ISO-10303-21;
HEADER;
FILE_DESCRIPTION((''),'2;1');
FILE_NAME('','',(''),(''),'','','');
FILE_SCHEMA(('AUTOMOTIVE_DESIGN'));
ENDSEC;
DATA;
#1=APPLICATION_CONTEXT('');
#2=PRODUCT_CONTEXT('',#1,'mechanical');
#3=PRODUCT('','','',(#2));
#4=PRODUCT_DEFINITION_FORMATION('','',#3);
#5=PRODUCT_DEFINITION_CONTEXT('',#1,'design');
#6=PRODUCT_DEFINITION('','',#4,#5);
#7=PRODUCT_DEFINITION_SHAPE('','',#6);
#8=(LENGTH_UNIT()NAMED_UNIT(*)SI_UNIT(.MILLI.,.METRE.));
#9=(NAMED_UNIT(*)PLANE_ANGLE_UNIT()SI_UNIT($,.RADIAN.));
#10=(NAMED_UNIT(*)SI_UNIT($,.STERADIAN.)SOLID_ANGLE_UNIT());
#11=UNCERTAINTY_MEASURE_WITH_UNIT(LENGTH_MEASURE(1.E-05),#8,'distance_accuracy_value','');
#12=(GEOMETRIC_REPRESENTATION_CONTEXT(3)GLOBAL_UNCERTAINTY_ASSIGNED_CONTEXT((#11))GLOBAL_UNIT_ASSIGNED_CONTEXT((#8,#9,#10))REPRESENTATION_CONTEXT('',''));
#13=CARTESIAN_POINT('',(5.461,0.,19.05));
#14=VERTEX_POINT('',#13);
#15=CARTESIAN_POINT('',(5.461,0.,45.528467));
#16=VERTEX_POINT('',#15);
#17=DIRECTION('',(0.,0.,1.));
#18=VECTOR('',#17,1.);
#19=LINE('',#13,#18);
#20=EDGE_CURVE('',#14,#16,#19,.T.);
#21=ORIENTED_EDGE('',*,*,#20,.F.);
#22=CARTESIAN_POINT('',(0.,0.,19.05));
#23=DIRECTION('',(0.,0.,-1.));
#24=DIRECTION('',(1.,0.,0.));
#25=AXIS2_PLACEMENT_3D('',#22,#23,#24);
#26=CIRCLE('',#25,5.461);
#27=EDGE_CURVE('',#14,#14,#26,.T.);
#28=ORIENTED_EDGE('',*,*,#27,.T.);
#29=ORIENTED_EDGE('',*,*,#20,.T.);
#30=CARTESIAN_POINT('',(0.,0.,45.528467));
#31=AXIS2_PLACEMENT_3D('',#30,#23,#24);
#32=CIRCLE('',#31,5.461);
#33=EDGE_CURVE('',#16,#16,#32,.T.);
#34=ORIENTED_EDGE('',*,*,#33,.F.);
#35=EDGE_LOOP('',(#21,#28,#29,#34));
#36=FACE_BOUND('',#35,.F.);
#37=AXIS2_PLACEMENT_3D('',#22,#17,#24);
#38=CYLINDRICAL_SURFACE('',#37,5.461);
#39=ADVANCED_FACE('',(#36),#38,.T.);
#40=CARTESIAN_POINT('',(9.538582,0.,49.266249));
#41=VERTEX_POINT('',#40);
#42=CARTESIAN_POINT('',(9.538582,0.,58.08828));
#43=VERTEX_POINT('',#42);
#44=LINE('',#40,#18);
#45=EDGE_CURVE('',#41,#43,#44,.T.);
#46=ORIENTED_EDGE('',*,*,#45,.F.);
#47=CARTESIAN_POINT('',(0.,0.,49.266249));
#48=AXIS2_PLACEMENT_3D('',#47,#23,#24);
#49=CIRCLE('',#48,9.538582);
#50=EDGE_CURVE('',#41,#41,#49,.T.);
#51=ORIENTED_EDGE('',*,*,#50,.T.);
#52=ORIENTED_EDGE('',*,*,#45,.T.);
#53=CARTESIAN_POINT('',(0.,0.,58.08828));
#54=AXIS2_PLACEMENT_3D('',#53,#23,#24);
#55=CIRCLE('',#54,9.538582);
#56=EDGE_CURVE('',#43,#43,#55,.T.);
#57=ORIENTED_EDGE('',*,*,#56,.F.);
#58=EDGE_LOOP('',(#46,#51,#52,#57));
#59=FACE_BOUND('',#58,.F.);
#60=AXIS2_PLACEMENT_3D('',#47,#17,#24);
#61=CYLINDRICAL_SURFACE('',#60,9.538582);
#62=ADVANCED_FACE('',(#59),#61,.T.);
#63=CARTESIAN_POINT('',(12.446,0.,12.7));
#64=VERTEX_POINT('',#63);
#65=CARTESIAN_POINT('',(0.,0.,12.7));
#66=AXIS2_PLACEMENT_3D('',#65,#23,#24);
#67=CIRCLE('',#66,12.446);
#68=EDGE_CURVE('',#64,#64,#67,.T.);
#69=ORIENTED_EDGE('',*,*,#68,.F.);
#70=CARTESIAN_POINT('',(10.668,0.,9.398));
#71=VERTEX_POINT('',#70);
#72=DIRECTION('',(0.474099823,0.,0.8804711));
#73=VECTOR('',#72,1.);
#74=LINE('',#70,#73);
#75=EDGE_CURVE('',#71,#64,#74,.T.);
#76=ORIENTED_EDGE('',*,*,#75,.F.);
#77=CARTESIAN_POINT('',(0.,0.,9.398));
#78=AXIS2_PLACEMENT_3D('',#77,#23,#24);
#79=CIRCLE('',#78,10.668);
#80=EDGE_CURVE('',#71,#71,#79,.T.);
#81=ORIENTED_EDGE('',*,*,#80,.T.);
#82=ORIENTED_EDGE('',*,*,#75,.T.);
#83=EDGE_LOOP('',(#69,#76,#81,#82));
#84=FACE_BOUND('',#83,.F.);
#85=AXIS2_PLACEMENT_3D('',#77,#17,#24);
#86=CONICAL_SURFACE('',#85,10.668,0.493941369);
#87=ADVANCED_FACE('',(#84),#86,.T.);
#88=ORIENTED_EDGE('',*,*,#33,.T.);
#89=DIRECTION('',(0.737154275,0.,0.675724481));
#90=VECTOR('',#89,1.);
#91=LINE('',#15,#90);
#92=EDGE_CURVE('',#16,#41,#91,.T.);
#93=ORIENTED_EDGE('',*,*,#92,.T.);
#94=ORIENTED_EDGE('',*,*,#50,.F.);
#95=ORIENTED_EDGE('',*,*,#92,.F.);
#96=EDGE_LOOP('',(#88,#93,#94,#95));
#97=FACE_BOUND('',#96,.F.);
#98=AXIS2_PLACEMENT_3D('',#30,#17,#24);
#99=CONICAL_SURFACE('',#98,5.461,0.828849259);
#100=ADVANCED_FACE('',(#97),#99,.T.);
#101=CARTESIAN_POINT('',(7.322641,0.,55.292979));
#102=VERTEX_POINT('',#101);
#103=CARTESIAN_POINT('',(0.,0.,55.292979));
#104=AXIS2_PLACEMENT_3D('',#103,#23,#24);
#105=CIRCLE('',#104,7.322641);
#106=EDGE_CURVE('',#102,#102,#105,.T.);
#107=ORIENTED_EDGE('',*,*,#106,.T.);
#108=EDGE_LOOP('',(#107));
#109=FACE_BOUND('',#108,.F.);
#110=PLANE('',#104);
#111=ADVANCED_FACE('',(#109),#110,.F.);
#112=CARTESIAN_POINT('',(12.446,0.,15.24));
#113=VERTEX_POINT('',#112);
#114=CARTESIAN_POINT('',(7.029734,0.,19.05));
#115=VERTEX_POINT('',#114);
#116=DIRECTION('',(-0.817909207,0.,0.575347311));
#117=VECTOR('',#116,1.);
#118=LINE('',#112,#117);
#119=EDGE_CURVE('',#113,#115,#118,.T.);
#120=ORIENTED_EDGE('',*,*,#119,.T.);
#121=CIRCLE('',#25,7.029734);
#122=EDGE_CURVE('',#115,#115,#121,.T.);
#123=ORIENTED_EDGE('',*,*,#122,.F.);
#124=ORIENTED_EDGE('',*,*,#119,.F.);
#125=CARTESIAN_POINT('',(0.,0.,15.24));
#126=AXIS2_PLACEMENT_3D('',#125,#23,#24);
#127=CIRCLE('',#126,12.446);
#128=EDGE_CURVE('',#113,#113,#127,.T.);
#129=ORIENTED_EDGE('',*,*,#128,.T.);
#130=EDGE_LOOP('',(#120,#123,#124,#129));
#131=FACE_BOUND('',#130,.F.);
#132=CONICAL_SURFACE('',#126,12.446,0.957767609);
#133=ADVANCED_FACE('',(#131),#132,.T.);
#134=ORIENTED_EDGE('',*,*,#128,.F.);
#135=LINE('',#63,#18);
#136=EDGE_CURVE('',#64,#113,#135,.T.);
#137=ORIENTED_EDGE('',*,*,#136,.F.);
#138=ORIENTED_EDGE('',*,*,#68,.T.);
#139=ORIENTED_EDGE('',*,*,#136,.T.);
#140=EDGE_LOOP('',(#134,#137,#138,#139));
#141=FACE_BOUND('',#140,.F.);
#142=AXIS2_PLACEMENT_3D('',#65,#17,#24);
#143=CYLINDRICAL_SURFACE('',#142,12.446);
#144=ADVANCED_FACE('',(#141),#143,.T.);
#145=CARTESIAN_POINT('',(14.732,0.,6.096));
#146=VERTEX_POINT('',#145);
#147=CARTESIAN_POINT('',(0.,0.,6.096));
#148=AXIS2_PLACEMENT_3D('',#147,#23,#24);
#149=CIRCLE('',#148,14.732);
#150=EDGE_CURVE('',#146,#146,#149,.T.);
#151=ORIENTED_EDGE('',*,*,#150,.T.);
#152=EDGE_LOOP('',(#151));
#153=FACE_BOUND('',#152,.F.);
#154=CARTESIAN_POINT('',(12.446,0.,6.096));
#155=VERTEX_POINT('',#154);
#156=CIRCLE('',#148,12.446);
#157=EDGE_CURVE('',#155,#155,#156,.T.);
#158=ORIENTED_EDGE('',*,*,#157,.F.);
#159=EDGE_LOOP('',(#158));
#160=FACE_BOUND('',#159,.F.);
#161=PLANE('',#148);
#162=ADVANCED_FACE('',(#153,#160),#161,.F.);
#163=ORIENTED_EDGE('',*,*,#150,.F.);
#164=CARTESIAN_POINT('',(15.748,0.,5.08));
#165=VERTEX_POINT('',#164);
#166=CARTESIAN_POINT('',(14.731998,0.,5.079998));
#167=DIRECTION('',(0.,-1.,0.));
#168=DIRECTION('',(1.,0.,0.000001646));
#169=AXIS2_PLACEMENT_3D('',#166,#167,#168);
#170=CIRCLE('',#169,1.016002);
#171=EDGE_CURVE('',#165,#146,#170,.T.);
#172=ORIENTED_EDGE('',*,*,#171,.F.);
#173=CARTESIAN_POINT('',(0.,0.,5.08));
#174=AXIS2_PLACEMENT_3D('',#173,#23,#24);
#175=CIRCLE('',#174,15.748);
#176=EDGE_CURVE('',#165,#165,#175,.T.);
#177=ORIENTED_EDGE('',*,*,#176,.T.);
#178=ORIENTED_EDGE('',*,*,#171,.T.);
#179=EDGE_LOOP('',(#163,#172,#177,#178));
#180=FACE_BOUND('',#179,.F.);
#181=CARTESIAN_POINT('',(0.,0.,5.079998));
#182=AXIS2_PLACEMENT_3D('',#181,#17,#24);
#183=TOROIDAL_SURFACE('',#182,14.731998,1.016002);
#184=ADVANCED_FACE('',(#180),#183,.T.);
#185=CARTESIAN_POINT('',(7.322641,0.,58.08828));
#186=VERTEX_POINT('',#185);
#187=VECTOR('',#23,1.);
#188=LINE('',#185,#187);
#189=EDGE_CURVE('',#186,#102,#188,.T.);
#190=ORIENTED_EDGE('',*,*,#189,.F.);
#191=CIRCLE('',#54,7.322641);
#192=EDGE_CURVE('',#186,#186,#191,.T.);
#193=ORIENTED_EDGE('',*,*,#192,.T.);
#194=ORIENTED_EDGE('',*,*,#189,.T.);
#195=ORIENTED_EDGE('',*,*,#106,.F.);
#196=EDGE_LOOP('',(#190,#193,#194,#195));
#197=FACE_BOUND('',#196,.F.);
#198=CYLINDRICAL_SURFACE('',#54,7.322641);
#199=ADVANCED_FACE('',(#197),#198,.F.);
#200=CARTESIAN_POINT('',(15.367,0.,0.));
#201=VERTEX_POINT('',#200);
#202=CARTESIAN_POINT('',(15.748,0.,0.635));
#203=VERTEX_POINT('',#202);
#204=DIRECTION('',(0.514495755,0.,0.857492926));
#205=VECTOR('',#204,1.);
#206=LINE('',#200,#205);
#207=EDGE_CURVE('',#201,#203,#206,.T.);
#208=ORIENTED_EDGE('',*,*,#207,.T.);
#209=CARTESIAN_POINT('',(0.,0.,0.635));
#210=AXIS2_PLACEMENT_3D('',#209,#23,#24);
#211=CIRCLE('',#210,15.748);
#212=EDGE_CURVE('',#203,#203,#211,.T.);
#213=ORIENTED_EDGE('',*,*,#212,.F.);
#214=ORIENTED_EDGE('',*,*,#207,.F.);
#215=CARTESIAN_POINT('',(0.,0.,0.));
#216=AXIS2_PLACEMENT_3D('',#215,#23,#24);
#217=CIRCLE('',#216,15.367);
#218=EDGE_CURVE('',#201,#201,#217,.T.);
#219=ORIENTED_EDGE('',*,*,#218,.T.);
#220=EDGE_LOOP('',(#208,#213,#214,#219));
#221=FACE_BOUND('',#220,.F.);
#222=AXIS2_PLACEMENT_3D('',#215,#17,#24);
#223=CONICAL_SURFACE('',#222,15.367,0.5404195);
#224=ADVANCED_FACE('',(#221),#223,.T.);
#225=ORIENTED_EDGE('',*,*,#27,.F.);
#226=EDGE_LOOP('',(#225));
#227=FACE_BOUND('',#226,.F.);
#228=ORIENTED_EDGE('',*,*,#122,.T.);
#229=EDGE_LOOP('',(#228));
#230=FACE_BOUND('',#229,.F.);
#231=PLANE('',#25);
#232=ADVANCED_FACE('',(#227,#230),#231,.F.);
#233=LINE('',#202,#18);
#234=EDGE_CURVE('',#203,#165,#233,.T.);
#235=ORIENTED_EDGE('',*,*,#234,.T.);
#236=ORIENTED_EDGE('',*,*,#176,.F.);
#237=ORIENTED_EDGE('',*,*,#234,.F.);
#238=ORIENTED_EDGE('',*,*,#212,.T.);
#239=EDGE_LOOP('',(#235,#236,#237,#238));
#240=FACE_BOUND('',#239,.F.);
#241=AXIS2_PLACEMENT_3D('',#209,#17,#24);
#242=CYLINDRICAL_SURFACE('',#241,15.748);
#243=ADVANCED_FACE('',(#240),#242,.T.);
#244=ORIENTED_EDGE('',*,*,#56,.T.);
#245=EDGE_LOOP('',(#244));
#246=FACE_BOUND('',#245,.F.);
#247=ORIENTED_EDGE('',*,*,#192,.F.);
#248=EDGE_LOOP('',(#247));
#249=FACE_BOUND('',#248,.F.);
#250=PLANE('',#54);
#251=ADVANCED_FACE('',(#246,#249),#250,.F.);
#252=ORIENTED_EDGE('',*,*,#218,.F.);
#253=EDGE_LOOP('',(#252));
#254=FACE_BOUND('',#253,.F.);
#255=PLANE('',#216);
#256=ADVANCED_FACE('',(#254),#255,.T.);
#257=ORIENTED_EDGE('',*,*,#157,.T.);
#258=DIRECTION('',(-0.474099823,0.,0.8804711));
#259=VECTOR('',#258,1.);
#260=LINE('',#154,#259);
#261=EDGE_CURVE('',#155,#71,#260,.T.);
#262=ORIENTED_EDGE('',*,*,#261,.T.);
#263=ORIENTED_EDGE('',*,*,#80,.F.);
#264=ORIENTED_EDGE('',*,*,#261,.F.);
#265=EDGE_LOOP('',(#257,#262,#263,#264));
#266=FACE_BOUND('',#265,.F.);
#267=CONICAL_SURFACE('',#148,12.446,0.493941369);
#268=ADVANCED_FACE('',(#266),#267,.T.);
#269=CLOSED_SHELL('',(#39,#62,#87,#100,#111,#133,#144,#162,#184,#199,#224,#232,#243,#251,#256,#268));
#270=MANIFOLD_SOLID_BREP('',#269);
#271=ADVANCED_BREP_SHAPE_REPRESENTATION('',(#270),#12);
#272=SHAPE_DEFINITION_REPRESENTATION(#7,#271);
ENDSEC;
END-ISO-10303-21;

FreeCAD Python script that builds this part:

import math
import FreeCAD as App
import Part
import Sketcher
Q = App.Units.Quantity

doc = App.newDocument("Part")
params = doc.addObject("Spreadsheet::Sheet", "Params")
for row, (alias, value) in enumerate([
    ("sketch1_radius", "0.0400001 in"),
    ("sketch1_height", "0.1 in"),
    ("sketch1_width", "0.09 in"),
    ("sketch1_width2", "0.605 in"),
    ("sketch1_height2", "0.175 in"),
    ("revolution_angle", "360 deg"),
], start=1):
    params.set(f"A{row}", alias)
    params.set(f"B{row}", "=" + value)
    params.setAlias(f"B{row}", alias)

body = doc.addObject("PartDesign::Body", "Body")

# Sketch on XZ plane
sketch1 = body.newObject("Sketcher::SketchObject", "Sketch")
sketch1.AttachmentSupport = (doc.getObject("XZ_Plane"), [""])
sketch1.MapMode = "FlatFace"
sketch1.addGeometry([
    Part.LineSegment(App.Vector(0, 0, 0), App.Vector(15.367, 0, 0)),  # 0
    Part.LineSegment(App.Vector(15.367, 0, 0), App.Vector(15.748, 0.635, 0)),  # 1
    Part.LineSegment(App.Vector(15.748, 0.635, 0), App.Vector(15.748, 5.08, 0)),  # 2
    Part.ArcOfCircle(Part.Circle(App.Vector(14.731998, 5.079998, 0), App.Vector(0, 0, 1), 1.016002), math.radians(0.000094), math.radians(89.999906)),  # 3
    Part.LineSegment(App.Vector(14.732, 6.096, 0), App.Vector(12.446, 6.096, 0)),  # 4
    Part.LineSegment(App.Vector(12.446, 6.096, 0), App.Vector(10.668, 9.398, 0)),  # 5
    Part.LineSegment(App.Vector(10.668, 9.398, 0), App.Vector(12.446, 12.7, 0)),  # 6
    Part.LineSegment(App.Vector(12.446, 12.7, 0), App.Vector(12.446, 15.24, 0)),  # 7
    Part.LineSegment(App.Vector(12.446, 15.24, 0), App.Vector(7.029734, 19.05, 0)),  # 8
    Part.LineSegment(App.Vector(7.029734, 19.05, 0), App.Vector(5.461, 19.05, 0)),  # 9
    Part.LineSegment(App.Vector(5.461, 19.05, 0), App.Vector(5.461, 45.528467, 0)),  # 10
    Part.LineSegment(App.Vector(5.461, 45.528467, 0), App.Vector(9.538582, 49.266249, 0)),  # 11
    Part.LineSegment(App.Vector(9.538582, 49.266249, 0), App.Vector(9.538582, 58.08828, 0)),  # 12
    Part.LineSegment(App.Vector(9.538582, 58.08828, 0), App.Vector(7.322641, 58.08828, 0)),  # 13
    Part.LineSegment(App.Vector(7.322641, 58.08828, 0), App.Vector(7.322641, 55.292979, 0)),  # 14
    Part.LineSegment(App.Vector(7.322641, 55.292979, 0), App.Vector(0, 55.292979, 0)),  # 15
    Part.LineSegment(App.Vector(0, 55.292979, 0), App.Vector(0, 0, 0)),  # 16
], False)
sketch1.addConstraint([
    Sketcher.Constraint("Coincident", 0, 2, 1, 1),
    Sketcher.Constraint("Coincident", 1, 2, 2, 1),
    Sketcher.Constraint("Tangent", 2, 2, 3, 1),
    Sketcher.Constraint("Tangent", 3, 2, 4, 1),
    Sketcher.Constraint("Coincident", 4, 2, 5, 1),
    Sketcher.Constraint("Coincident", 5, 2, 6, 1),
    Sketcher.Constraint("Coincident", 6, 2, 7, 1),
    Sketcher.Constraint("Coincident", 7, 2, 8, 1),
    Sketcher.Constraint("Coincident", 8, 2, 9, 1),
    Sketcher.Constraint("Coincident", 9, 2, 10, 1),
    Sketcher.Constraint("Coincident", 10, 2, 11, 1),
    Sketcher.Constraint("Coincident", 11, 2, 12, 1),
    Sketcher.Constraint("Coincident", 12, 2, 13, 1),
    Sketcher.Constraint("Coincident", 13, 2, 14, 1),
    Sketcher.Constraint("Coincident", 14, 2, 15, 1),
    Sketcher.Constraint("Coincident", 15, 2, 16, 1),
    Sketcher.Constraint("Coincident", 16, 2, 0, 1),
    Sketcher.Constraint("Horizontal", 0),
    Sketcher.Constraint("Vertical", 2),
    Sketcher.Constraint("Horizontal", 4),
    Sketcher.Constraint("Vertical", 7),
    Sketcher.Constraint("Horizontal", 9),
    Sketcher.Constraint("Vertical", 10),
    Sketcher.Constraint("Vertical", 12),
    Sketcher.Constraint("Horizontal", 13),
    Sketcher.Constraint("Vertical", 14),
    Sketcher.Constraint("Horizontal", 15),
    Sketcher.Constraint("Vertical", 16),
    Sketcher.Constraint("Coincident", 16, 2, -1, 1),
    Sketcher.Constraint("Vertical", 4, 2, 6, 2),
    Sketcher.Constraint("Equal", 5, 6),
    Sketcher.Constraint("Radius", 3, Q("0.0400001 in")),
    Sketcher.Constraint("DistanceY", 7, 1, 7, 2, Q("0.1 in")),
    Sketcher.Constraint("DistanceX", 4, 2, 4, 1, Q("0.09 in")),
    Sketcher.Constraint("DistanceY", -1, 1, 3, 3, Q("0.1999999 in")),
    Sketcher.Constraint("DistanceY", -1, 1, 6, 2, Q("0.5 in")),
    Sketcher.Constraint("DistanceX", 5, 2, 2, 2, Q("0.2 in")),
    Sketcher.Constraint("DistanceX", 0, 1, 0, 2, Q("0.605 in")),
    Sketcher.Constraint("DistanceY", 2, 1, 2, 2, Q("0.175 in")),
    Sketcher.Constraint("DistanceX", -1, 1, 3, 3, Q("0.5799999 in")),
    Sketcher.Constraint("DistanceY", -1, 1, 8, 2, Q("0.75 in")),
    Sketcher.Constraint("DistanceX", -1, 1, 9, 2, Q("0.215 in")),
    Sketcher.Constraint("DistanceY", 14, 2, 14, 1, 2.795301),
    Sketcher.Constraint("DistanceX", 13, 2, 13, 1, 2.215941),
    Sketcher.Constraint("DistanceX", 15, 2, 15, 1, 7.322641),
    Sketcher.Constraint("DistanceY", 12, 1, 12, 2, 8.822031),
    Sketcher.Constraint("DistanceY", 16, 2, 16, 1, 55.292979),
    Sketcher.Constraint("DistanceX", 9, 2, 9, 1, 1.568734),
    Sketcher.Constraint("DistanceY", 10, 1, 10, 2, 26.478467),
])
sketch1.setExpression("Constraints[31]", "Params.sketch1_radius")
sketch1.setExpression("Constraints[32]", "Params.sketch1_height")
sketch1.setExpression("Constraints[33]", "Params.sketch1_width")
sketch1.setExpression("Constraints[37]", "Params.sketch1_width2")
sketch1.setExpression("Constraints[38]", "Params.sketch1_height2")
revolution = body.newObject("PartDesign::Revolution", "Revolution")
revolution.Profile = sketch1
revolution.ReferenceAxis = (sketch1, ["V_Axis"])
revolution.setExpression("Angle", "Params.revolution_angle")

doc.recompute()
